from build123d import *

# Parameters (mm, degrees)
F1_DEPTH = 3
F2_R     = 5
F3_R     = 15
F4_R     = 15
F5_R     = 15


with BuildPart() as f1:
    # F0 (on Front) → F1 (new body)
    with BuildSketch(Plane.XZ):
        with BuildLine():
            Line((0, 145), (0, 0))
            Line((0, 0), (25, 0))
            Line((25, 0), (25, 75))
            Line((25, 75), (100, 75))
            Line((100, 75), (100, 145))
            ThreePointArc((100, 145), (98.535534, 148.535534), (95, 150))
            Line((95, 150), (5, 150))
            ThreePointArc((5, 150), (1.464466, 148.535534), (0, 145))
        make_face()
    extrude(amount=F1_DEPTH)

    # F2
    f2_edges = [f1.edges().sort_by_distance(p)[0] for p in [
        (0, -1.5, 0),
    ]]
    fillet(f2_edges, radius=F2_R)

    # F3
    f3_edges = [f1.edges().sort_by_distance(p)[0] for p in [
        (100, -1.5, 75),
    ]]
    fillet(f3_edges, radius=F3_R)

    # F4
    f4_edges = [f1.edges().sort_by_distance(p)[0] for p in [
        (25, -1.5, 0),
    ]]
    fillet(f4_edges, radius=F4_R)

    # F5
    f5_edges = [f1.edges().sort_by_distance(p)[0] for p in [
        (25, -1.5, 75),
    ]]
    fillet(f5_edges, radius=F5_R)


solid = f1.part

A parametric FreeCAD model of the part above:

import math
import FreeCAD as App
import Part
import Sketcher
from FreeCAD import Vector


def edges_at(feature, points):
    """Names of the edges that pass closest to the given points."""
    edges = feature.Shape.Edges
    near = lambda p: min(range(len(edges)), key=lambda i: edges[i].distToShape(Part.Vertex(*p))[0])
    return sorted({f"Edge{near(p) + 1}" for p in points})

doc = App.newDocument("Part")
params = doc.addObject("Spreadsheet::Sheet", "Params")
for row, (alias, value) in enumerate([
    ("sketch1_radius", "5 mm"),
    ("sketch1_width", "25 mm"),
    ("sketch1_width2", "75 mm"),
    ("sketch1_height", "145 mm"),
    ("pad1_length", "3 mm"),
    ("fillet_radius", "5 mm"),
    ("fillet2_radius", "15 mm"),
    ("fillet3_radius", "15 mm"),
    ("fillet4_radius", "15 mm"),
], start=1):
    params.set(f"A{row}", alias)
    params.set(f"B{row}", "=" + value)
    params.setAlias(f"B{row}", alias)

body = doc.addObject("PartDesign::Body", "Body")

# Sketch on XZ plane
sketch1 = body.newObject("Sketcher::SketchObject", "Sketch")
sketch1.AttachmentSupport = (doc.getObject("XZ_Plane"), [""])
sketch1.MapMode = "FlatFace"
sketch1.addGeometry([
    Part.LineSegment(Vector(0, 145, 0), Vector(0, 0, 0)),  # 0
    Part.LineSegment(Vector(0, 0, 0), Vector(25, 0, 0)),  # 1
    Part.LineSegment(Vector(25, 0, 0), Vector(25, 75, 0)),  # 2
    Part.LineSegment(Vector(25, 75, 0), Vector(100, 75, 0)),  # 3
    Part.LineSegment(Vector(100, 75, 0), Vector(100, 145, 0)),  # 4
    Part.ArcOfCircle(Part.Circle(Vector(95, 145, 0), Vector(0, 0, 1), 5), math.radians(0), math.radians(90)),  # 5
    Part.LineSegment(Vector(95, 150, 0), Vector(5, 150, 0)),  # 6
    Part.ArcOfCircle(Part.Circle(Vector(5, 145, 0), Vector(0, 0, 1), 5), math.radians(90), math.radians(180)),  # 7
], False)
sketch1.addConstraint([
    Sketcher.Constraint("Coincident", 0, 2, 1, 1),
    Sketcher.Constraint("Coincident", 1, 2, 2, 1),
    Sketcher.Constraint("Coincident", 2, 2, 3, 1),
    Sketcher.Constraint("Coincident", 3, 2, 4, 1),
    Sketcher.Constraint("Tangent", 4, 2, 5, 1),
    Sketcher.Constraint("Tangent", 5, 2, 6, 1),
    Sketcher.Constraint("Tangent", 6, 2, 7, 1),
    Sketcher.Constraint("Tangent", 7, 2, 0, 1),
    Sketcher.Constraint("Vertical", 0),
    Sketcher.Constraint("Horizontal", 1),
    Sketcher.Constraint("Vertical", 2),
    Sketcher.Constraint("Horizontal", 3),
    Sketcher.Constraint("Vertical", 4),
    Sketcher.Constraint("Horizontal", 6),
    Sketcher.Constraint("Coincident", 0, 2, -1, 1),
    Sketcher.Constraint("Equal", 5, 7),
    Sketcher.Constraint("Equal", 3, 2),
    Sketcher.Constraint("Radius", 5, 5.0),
    Sketcher.Constraint("DistanceX", 1, 1, 1, 2, 25.0),
    Sketcher.Constraint("DistanceX", 3, 1, 3, 2, 75.0),
    Sketcher.Constraint("DistanceY", 0, 2, 0, 1, 145.0),
])
sketch1.setExpression("Constraints[17]", "Params.sketch1_radius")
sketch1.setExpression("Constraints[18]", "Params.sketch1_width")
sketch1.setExpression("Constraints[19]", "Params.sketch1_width2")
sketch1.setExpression("Constraints[20]", "Params.sketch1_height")
pad1 = body.newObject("PartDesign::Pad", "Pad")
pad1.Profile = sketch1
pad1.setExpression("Length", "Params.pad1_length")
doc.recompute()

fillet = body.newObject("PartDesign::Fillet", "Fillet")
fillet.Base = (pad1, edges_at(pad1, [(0, -1.5, 0)]))
fillet.setExpression("Radius", "Params.fillet_radius")
doc.recompute()

fillet2 = body.newObject("PartDesign::Fillet", "Fillet001")
fillet2.Base = (fillet, edges_at(fillet, [(100, -1.5, 75)]))
fillet2.setExpression("Radius", "Params.fillet2_radius")
doc.recompute()

fillet3 = body.newObject("PartDesign::Fillet", "Fillet002")
fillet3.Base = (fillet2, edges_at(fillet2, [(25, -1.5, 0)]))
fillet3.setExpression("Radius", "Params.fillet3_radius")
doc.recompute()

fillet4 = body.newObject("PartDesign::Fillet", "Fillet003")
fillet4.Base = (fillet3, edges_at(fillet3, [(25, -1.5, 75)]))
fillet4.setExpression("Radius", "Params.fillet4_radius")

doc.recompute()
